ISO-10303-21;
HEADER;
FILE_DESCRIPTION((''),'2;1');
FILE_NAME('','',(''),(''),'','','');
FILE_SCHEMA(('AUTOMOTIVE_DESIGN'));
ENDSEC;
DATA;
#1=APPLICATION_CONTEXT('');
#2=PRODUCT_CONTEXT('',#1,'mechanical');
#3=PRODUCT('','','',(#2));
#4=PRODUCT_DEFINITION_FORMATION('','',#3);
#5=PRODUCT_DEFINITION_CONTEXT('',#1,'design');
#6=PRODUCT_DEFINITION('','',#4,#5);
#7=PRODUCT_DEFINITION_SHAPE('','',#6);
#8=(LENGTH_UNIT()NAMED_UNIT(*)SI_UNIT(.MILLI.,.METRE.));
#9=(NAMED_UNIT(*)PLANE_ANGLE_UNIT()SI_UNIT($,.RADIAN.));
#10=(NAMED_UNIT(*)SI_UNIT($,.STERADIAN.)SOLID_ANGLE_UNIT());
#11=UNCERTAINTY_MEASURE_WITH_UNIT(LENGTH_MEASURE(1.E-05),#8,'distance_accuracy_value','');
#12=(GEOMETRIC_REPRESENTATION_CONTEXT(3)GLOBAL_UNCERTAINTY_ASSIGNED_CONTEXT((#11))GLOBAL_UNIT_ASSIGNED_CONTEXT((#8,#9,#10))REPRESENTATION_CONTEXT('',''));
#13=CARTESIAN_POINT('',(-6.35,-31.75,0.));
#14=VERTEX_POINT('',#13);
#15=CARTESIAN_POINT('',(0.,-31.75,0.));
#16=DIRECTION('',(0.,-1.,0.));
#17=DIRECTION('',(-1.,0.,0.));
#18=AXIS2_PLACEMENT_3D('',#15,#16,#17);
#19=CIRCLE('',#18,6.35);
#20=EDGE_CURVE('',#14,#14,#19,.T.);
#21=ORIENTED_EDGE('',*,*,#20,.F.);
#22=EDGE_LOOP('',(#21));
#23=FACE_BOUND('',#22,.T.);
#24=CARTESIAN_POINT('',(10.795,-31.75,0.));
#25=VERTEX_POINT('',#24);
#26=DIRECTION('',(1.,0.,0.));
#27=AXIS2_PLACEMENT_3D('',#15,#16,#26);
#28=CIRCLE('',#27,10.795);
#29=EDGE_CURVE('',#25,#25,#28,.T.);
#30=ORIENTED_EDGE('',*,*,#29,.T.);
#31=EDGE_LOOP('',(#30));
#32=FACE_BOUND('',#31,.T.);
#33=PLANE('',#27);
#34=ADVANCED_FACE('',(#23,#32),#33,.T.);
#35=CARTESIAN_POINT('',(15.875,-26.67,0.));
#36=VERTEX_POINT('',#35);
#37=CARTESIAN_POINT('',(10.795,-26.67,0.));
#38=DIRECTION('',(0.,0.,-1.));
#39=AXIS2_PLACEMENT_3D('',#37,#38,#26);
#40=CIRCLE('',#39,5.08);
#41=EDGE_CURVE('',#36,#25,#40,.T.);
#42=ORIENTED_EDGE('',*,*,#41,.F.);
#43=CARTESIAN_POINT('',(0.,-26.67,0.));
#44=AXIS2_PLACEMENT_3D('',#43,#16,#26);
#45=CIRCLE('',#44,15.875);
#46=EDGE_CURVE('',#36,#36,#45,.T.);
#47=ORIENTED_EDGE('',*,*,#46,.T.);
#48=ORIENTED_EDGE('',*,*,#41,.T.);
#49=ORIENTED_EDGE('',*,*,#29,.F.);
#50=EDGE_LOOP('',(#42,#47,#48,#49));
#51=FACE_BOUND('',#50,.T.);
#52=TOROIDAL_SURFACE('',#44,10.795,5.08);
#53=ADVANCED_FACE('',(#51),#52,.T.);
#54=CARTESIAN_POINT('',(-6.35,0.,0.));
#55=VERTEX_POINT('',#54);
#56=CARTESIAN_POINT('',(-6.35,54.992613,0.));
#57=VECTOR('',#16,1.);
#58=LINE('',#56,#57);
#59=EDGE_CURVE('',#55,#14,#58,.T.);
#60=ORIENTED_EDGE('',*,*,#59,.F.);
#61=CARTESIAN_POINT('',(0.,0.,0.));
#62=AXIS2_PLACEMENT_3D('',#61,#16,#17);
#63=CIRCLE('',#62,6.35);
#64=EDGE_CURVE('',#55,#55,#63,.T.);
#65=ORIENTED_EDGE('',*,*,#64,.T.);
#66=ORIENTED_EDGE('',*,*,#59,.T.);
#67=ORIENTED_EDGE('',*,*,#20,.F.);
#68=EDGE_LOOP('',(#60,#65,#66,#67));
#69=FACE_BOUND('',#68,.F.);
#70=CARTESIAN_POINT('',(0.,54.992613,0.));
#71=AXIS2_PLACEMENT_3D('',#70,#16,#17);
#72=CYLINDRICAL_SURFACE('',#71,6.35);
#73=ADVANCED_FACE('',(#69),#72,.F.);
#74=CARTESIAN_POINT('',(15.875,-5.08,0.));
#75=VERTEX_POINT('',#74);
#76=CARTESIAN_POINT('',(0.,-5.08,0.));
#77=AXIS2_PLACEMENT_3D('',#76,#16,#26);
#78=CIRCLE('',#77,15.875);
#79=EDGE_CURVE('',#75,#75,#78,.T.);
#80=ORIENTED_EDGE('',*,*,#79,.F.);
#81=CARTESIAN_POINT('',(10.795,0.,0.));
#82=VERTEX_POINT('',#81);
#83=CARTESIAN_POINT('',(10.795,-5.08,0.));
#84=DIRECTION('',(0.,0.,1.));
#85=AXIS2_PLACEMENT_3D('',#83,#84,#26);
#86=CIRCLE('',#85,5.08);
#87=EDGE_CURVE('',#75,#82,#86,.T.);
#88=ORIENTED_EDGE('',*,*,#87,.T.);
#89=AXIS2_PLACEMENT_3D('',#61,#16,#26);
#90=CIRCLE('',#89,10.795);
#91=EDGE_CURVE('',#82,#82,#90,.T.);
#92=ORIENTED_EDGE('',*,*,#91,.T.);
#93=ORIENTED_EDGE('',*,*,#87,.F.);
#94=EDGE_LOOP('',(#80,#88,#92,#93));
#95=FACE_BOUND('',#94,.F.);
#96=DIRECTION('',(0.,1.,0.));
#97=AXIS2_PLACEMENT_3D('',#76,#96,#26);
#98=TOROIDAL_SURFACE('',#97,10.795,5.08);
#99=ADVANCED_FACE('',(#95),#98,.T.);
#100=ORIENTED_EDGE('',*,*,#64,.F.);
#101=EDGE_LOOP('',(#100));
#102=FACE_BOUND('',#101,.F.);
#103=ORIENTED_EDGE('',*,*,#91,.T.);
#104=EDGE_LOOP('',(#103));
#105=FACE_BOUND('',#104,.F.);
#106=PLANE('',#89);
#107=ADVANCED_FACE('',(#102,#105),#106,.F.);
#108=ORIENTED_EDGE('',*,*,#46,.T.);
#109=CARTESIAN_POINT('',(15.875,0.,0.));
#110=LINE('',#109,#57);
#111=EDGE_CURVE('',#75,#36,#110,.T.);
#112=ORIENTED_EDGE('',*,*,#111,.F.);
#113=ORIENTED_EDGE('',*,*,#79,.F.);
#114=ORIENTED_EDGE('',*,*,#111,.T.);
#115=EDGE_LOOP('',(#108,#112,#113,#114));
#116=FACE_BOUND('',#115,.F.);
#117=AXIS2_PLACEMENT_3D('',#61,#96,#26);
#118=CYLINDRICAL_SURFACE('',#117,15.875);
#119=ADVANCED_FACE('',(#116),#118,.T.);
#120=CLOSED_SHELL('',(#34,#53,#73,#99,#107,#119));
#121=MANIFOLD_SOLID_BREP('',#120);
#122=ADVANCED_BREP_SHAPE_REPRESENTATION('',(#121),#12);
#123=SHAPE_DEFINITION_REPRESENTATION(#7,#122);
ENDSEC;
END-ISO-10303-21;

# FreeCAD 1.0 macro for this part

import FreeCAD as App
import Part
import Sketcher

V = App.Vector
Q = App.Units.Quantity


def edges_at(feature, points):
    """Names of the edges that pass closest to the given points."""
    edges = feature.Shape.Edges
    near = lambda p: min(range(len(edges)), key=lambda i: edges[i].distToShape(Part.Vertex(*p))[0])
    return sorted({f"Edge{near(p) + 1}" for p in points})

doc = App.newDocument("Part")
params = doc.addObject("Spreadsheet::Sheet", "Params")
for row, (alias, value) in enumerate([
    ("sketch1_diameter", "1.25 in"),
    ("pad1_length", "1.25 in"),
    ("sketch2_diameter", "0.5 in"),
    ("hole_diameter", "0.5 in"),
    ("fillet_radius", "0.2 in"),
], start=1):
    params.set(f"A{row}", alias)
    params.set(f"B{row}", "=" + value)
    params.setAlias(f"B{row}", alias)

body = doc.addObject("PartDesign::Body", "Body")

# Sketch on XZ plane
sketch1 = body.newObject("Sketcher::SketchObject", "Sketch")
sketch1.AttachmentSupport = (doc.getObject("XZ_Plane"), [""])
sketch1.MapMode = "FlatFace"
sketch1.addGeometry(Part.Circle(V(0, 0, 0), V(0, 0, 1), 16), False)
sketch1.addConstraint(Sketcher.Constraint("Coincident", 0, 3, -1, 1))
sketch1.addConstraint(Sketcher.Constraint("Diameter", 0, Q("1.25 in")))
sketch1.setExpression("Constraints[1]", "Params.sketch1_diameter")
pad1 = body.newObject("PartDesign::Pad", "Pad")
pad1.Profile = sketch1
pad1.setExpression("Length", "Params.pad1_length")

# Sketch on XZ plane
sketch2 = body.newObject("Sketcher::SketchObject", "Sketch001")
sketch2.AttachmentSupport = (doc.getObject("XZ_Plane"), [""])
sketch2.MapMode = "FlatFace"
sketch2.addGeometry(Part.Circle(V(0, 0, 0), V(0, 0, 1), 6), False)
sketch2.addConstraint(Sketcher.Constraint("Coincident", 0, 3, -1, 1))
sketch2.addConstraint(Sketcher.Constraint("Diameter", 0, Q("0.5 in")))
sketch2.setExpression("Constraints[1]", "Params.sketch2_diameter")
doc.recompute()
hole = body.newObject("PartDesign::Hole", "Hole")
hole.Profile = sketch2
hole.ThreadType = "None"
hole.setExpression("Diameter", "Params.hole_diameter")
hole.DepthType = "ThroughAll"
hole.Reversed = True
doc.recompute()

fillet = body.newObject("PartDesign::Fillet", "Fillet")
fillet.Base = (hole, edges_at(hole, [(-15.875, -31.75, 0), (-15.875, 0, 0)]))
fillet.setExpression("Radius", "Params.fillet_radius")

doc.recompute()
